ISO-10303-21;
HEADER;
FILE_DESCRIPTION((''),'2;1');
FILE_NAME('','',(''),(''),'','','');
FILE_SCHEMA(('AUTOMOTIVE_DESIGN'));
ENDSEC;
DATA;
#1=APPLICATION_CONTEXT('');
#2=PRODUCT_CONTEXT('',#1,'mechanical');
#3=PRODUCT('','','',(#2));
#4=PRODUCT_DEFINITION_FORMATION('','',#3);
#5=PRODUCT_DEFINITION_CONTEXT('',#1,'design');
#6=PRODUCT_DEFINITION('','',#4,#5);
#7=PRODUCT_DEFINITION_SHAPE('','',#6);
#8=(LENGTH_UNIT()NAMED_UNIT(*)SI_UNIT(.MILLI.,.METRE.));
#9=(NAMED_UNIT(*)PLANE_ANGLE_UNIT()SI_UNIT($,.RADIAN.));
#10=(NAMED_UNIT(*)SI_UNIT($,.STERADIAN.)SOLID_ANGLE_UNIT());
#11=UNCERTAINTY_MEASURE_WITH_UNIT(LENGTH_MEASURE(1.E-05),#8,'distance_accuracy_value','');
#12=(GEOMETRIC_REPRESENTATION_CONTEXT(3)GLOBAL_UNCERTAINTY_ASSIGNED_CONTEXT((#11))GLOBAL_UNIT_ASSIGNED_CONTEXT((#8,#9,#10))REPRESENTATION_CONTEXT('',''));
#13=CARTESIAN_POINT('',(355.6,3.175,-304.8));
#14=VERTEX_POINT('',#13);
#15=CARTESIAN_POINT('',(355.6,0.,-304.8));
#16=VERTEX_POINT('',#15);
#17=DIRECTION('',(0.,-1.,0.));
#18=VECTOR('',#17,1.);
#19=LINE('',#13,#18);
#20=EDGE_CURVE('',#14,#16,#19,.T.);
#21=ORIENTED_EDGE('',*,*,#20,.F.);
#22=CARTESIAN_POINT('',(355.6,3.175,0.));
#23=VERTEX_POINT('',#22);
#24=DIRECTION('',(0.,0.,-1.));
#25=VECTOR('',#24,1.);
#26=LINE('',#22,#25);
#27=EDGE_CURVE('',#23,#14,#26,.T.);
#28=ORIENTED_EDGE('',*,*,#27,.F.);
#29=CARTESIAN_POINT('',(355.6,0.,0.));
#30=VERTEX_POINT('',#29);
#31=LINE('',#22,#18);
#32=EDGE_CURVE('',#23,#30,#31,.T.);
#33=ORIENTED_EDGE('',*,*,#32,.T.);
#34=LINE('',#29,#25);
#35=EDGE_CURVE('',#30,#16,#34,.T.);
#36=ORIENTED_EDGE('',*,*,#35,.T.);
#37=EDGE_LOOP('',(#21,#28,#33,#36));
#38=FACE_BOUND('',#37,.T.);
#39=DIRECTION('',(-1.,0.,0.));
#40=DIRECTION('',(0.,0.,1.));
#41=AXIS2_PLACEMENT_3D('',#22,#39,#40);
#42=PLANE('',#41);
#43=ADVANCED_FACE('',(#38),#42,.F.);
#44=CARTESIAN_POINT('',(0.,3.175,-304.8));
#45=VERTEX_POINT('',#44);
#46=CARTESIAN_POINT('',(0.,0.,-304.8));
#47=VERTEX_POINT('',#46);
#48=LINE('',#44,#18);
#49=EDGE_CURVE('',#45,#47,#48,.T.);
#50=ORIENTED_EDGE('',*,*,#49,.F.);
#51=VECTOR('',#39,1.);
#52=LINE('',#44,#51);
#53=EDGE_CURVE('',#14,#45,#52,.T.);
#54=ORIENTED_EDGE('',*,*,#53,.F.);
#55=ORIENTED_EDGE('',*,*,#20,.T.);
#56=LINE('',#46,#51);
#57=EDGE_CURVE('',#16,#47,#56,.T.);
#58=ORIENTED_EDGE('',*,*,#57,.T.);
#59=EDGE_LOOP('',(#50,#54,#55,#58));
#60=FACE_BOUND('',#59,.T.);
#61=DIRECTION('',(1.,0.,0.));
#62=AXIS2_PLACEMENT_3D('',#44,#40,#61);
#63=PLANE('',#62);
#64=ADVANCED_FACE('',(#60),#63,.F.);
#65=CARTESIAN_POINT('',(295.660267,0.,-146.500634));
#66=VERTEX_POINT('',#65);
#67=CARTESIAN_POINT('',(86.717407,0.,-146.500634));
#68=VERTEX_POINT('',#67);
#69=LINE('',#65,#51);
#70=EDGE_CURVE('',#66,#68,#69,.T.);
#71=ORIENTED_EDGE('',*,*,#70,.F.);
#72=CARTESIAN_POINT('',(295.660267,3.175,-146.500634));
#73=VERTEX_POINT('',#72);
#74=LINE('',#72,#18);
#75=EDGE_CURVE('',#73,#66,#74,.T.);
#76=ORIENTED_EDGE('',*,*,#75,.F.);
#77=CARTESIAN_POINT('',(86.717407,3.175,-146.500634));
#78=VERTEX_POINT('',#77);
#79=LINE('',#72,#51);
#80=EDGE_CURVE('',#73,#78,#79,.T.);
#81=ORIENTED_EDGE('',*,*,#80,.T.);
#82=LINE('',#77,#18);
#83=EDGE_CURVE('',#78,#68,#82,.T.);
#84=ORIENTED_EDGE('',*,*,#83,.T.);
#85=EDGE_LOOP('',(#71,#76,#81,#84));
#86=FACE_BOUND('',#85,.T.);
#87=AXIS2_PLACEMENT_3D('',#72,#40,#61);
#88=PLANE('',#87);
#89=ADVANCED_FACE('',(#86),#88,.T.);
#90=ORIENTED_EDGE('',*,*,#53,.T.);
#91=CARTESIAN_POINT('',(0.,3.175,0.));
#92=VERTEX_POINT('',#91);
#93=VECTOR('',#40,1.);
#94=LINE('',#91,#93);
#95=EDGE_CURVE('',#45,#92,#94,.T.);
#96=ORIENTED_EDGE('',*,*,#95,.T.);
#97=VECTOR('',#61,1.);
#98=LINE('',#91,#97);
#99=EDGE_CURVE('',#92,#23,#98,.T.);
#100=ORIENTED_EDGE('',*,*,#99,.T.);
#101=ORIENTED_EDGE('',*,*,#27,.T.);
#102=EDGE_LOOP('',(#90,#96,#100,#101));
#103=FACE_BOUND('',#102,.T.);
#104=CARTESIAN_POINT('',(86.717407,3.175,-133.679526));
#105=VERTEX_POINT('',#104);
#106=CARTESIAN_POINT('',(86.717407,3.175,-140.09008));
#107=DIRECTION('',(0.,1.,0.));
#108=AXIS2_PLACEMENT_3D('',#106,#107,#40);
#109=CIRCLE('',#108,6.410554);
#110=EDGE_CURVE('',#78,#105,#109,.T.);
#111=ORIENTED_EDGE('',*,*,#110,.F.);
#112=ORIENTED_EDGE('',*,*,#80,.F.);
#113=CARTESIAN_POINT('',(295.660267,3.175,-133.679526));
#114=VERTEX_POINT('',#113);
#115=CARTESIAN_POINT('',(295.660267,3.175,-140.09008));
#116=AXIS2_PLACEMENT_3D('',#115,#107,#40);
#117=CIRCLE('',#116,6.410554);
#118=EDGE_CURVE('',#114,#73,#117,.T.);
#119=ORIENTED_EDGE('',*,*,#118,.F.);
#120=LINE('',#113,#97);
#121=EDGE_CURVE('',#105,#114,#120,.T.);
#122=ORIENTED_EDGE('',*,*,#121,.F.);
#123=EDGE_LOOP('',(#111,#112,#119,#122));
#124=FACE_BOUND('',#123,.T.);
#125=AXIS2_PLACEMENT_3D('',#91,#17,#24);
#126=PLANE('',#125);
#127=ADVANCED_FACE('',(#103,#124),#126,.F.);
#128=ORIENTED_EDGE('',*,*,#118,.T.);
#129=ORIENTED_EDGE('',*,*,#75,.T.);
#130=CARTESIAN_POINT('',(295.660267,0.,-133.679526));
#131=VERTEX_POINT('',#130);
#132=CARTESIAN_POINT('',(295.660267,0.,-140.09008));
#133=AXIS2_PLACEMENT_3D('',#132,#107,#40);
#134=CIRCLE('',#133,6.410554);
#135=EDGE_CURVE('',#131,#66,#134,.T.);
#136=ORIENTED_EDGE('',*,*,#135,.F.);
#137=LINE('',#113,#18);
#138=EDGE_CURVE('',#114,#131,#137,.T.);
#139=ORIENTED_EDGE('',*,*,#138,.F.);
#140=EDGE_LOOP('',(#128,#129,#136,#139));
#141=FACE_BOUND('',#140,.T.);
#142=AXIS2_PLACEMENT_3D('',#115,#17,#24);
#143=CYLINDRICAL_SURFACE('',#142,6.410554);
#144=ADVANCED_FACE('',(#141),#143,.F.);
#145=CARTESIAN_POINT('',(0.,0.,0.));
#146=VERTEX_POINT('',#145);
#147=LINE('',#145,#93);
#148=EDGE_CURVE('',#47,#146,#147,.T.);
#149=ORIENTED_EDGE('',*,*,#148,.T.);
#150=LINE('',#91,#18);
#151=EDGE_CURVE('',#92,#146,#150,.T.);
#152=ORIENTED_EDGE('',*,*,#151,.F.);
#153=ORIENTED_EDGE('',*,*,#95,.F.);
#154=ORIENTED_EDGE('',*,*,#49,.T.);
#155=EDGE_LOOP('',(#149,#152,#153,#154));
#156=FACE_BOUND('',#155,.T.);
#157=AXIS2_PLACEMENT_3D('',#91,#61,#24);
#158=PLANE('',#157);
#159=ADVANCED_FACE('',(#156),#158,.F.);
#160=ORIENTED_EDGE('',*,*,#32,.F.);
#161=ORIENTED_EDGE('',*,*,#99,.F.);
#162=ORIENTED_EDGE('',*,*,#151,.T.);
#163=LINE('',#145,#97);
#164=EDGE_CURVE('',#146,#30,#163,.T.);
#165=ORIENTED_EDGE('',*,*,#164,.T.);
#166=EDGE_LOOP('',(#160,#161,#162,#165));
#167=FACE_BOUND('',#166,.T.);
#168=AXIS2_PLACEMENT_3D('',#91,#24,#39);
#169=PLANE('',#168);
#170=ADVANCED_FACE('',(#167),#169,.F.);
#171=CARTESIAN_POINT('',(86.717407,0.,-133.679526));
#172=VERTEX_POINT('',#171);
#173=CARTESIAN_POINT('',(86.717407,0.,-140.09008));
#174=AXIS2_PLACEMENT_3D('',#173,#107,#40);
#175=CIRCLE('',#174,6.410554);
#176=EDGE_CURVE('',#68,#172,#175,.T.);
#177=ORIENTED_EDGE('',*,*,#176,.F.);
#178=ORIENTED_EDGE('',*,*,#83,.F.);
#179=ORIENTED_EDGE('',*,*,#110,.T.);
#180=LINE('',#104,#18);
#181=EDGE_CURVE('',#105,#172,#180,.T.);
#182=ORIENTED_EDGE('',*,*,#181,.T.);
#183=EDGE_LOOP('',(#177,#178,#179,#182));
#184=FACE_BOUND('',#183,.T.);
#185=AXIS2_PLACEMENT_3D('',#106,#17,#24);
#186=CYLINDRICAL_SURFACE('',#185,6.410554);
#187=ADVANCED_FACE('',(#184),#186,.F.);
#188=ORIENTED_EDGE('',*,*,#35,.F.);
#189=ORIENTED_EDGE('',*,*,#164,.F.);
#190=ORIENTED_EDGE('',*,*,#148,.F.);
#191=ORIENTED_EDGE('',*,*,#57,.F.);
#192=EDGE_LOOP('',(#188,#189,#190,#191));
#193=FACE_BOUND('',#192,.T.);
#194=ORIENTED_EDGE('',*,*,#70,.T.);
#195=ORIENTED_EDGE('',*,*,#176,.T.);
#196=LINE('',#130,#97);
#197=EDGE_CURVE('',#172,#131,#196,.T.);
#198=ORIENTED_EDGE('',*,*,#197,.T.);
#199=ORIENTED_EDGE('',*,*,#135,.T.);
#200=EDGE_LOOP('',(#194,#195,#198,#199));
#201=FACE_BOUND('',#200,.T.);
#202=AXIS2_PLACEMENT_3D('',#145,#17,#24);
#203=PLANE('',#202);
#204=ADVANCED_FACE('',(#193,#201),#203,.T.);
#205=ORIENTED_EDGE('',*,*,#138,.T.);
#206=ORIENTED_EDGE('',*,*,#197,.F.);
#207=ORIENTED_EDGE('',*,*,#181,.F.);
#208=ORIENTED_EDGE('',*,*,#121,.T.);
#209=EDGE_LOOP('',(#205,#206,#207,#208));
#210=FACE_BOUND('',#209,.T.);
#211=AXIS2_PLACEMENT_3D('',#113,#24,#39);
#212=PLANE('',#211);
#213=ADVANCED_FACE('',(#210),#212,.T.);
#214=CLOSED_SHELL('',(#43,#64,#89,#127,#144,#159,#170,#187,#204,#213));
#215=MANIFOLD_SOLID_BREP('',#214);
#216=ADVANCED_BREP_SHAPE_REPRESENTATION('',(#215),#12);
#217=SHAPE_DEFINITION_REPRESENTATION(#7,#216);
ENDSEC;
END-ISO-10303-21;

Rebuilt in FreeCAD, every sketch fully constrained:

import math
import FreeCAD as App
import Part
import Sketcher

V = App.Vector
Q = App.Units.Quantity

doc = App.newDocument("Part")
body = doc.addObject("PartDesign::Body", "Body")

# Sketch on XZ plane
sketch1 = body.newObject("Sketcher::SketchObject", "Sketch")
sketch1.AttachmentSupport = (doc.getObject("XZ_Plane"), [""])
sketch1.MapMode = "FlatFace"
sketch1.addGeometry([
    Part.LineSegment(V(0, -305, 0), V(0, 0, 0)),  # 0
    Part.LineSegment(V(0, 0, 0), V(356, 0, 0)),  # 1
    Part.LineSegment(V(356, 0, 0), V(356, -305, 0)),  # 2
    Part.LineSegment(V(356, -305, 0), V(0, -305, 0)),  # 3
    Part.ArcOfCircle(Part.Circle(V(296, -140, 0), V(0, 0, 1), 6), math.radians(-90), math.radians(90)),  # 4
    Part.LineSegment(V(296, -134, 0), V(87, -134, 0)),  # 5
    Part.ArcOfCircle(Part.Circle(V(87, -140, 0), V(0, 0, 1), 6), math.radians(90), math.radians(270)),  # 6
    Part.LineSegment(V(87, -147, 0), V(296, -147, 0)),  # 7
], False)
sketch1.addConstraint([
    Sketcher.Constraint("Coincident", 0, 2, 1, 1),
    Sketcher.Constraint("Coincident", 1, 2, 2, 1),
    Sketcher.Constraint("Coincident", 2, 2, 3, 1),
    Sketcher.Constraint("Coincident", 3, 2, 0, 1),
    Sketcher.Constraint("Tangent", 4, 2, 5, 1),
    Sketcher.Constraint("Tangent", 5, 2, 6, 1),
    Sketcher.Constraint("Tangent", 6, 2, 7, 1),
    Sketcher.Constraint("Tangent", 7, 2, 4, 1),
    Sketcher.Constraint("Vertical", 0),
    Sketcher.Constraint("Horizontal", 1),
    Sketcher.Constraint("Vertical", 2),
    Sketcher.Constraint("Horizontal", 3),
    Sketcher.Constraint("Horizontal", 5),
    Sketcher.Constraint("Horizontal", 7),
    Sketcher.Constraint("Coincident", 0, 2, -1, 1),
    Sketcher.Constraint("DistanceX", 1, 1, 1, 2, Q("14 in")),
    Sketcher.Constraint("DistanceY", 0, 1, 0, 2, Q("12 in")),
    Sketcher.Constraint("Radius", 4, 6.410554),
    Sketcher.Constraint("DistanceX", 5, 2, 5, 1, 208.94286),
    Sketcher.Constraint("DistanceY", 4, 3, -1, 1, 140.09008),
    Sketcher.Constraint("DistanceX", -1, 1, 4, 3, 295.660267),
])
pad1 = body.newObject("PartDesign::Pad", "Pad")
pad1.Profile = sketch1
pad1.Length = Q("0.125 in")
pad1.Reversed = True

doc.recompute()
